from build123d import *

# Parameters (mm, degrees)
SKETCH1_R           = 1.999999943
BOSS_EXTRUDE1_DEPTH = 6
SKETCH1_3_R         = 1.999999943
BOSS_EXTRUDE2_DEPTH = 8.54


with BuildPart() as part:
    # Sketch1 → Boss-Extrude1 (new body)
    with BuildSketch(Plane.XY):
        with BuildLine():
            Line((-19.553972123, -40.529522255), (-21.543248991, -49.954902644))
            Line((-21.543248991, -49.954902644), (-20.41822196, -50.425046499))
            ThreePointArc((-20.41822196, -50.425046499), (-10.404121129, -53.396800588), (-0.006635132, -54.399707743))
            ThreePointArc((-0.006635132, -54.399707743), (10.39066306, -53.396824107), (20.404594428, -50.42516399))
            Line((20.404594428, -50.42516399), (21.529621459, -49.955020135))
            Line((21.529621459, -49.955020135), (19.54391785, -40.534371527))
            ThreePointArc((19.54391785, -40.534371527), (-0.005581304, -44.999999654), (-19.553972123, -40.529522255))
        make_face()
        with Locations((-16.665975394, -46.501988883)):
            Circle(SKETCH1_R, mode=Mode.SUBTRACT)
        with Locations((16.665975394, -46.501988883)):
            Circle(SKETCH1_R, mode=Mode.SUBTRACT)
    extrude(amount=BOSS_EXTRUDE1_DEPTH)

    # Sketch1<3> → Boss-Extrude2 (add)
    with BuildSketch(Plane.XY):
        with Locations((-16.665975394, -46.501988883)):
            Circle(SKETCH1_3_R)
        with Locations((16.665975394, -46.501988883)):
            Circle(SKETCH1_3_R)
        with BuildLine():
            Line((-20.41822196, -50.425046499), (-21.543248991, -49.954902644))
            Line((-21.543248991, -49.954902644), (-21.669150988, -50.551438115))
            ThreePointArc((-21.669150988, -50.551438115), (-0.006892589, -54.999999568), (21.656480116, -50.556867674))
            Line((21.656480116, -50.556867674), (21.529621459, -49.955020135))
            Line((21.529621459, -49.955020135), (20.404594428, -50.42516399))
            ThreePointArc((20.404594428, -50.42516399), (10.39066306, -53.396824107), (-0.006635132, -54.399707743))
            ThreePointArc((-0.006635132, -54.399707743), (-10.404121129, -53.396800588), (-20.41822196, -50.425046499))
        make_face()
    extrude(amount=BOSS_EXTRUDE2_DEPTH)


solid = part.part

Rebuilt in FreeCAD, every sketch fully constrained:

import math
import FreeCAD as App
import Part
import Sketcher
from FreeCAD import Vector
Q = App.Units.Quantity

doc = App.newDocument("Part")
body = doc.addObject("PartDesign::Body", "Body")

# Sketch on XY plane
sketch1 = body.newObject("Sketcher::SketchObject", "Sketch")
sketch1.AttachmentSupport = (doc.getObject("XY_Plane"), [""])
sketch1.MapMode = "FlatFace"
sketch1.addGeometry([
    Part.LineSegment(Vector(-19.6, -40.5, 0), Vector(-21.5, -50, 0)),  # 0
    Part.LineSegment(Vector(-21.5, -50, 0), Vector(-20.4, -50.4, 0)),  # 1
    Part.ArcOfCircle(Part.Circle(Vector(0, 0, 0), Vector(0, 0, 1), 54.4), math.radians(-112), math.radians(-90)),  # 2
    Part.ArcOfCircle(Part.Circle(Vector(0, 0, 0), Vector(0, 0, 1), 54.4), math.radians(-90), math.radians(-68)),  # 3
    Part.LineSegment(Vector(20.4, -50.4, 0), Vector(21.5, -50, 0)),  # 4
    Part.LineSegment(Vector(21.5, -50, 0), Vector(19.5, -40.5, 0)),  # 5
    Part.ArcOfCircle(Part.Circle(Vector(0, 0, 0), Vector(0, 0, 1), 45), math.radians(-116), math.radians(-64)),  # 6
    Part.Circle(Vector(-16.7, -46.5, 0), Vector(0, 0, 1), 2),  # 7
    Part.Circle(Vector(16.7, -46.5, 0), Vector(0, 0, 1), 2),  # 8
], False)
sketch1.addConstraint([
    Sketcher.Constraint("Coincident", 0, 2, 1, 1),
    Sketcher.Constraint("Coincident", 1, 2, 2, 1),
    Sketcher.Constraint("Tangent", 2, 2, 3, 1),
    Sketcher.Constraint("Coincident", 3, 2, 4, 1),
    Sketcher.Constraint("Coincident", 4, 2, 5, 1),
    Sketcher.Constraint("Coincident", 5, 2, 6, 2),
    Sketcher.Constraint("Coincident", 6, 1, 0, 1),
    Sketcher.Constraint("Coincident", 6, 3, -1, 1),
    Sketcher.Constraint("Equal", 2, 3),
    Sketcher.Constraint("Equal", 7, 8),
    Sketcher.Constraint("Symmetric", 7, 3, 8, 3, -2),
    Sketcher.Constraint("Equal", 1, 4),
    Sketcher.Constraint("Diameter", 7, Q("4 mm")),
    Sketcher.Constraint("Radius", 6, Q("45 mm")),
    Sketcher.Constraint("Radius", 2, Q("54.398276 mm")),
    Sketcher.Constraint("Distance", 1, Q("1.219312 mm")),
    Sketcher.Constraint("Distance", 5, Q("9.62765 mm")),
    Sketcher.Constraint("DistanceX", 2, 3, -1, 1, Q("0.006669 mm")),
    Sketcher.Constraint("DistanceY", 2, 3, -1, 1, Q("0.001431 mm")),
    Sketcher.Constraint("DistanceY", 7, 3, -1, 1, Q("46.501989 mm")),
    Sketcher.Constraint("DistanceX", 0, 2, -1, 1, Q("21.543249 mm")),
    Sketcher.Constraint("DistanceX", 1, 2, -1, 1, Q("20.418222 mm")),
    Sketcher.Constraint("DistanceX", -1, 1, 4, 2, Q("21.529621 mm")),
    Sketcher.Constraint("DistanceY", 4, 2, -1, 1, Q("49.95502 mm")),
    Sketcher.Constraint("DistanceX", 7, 3, 8, 3, Q("33.331951 mm")),
    Sketcher.Constraint("DistanceX", 7, 3, 2, 2, Q("16.65934 mm")),
    Sketcher.Constraint("DistanceY", 0, 2, 6, 1, Q("9.42538 mm")),
])
pad1 = body.newObject("PartDesign::Pad", "Pad")
pad1.Profile = sketch1
pad1.Length = 6

# Sketch on XY plane
sketch2 = body.newObject("Sketcher::SketchObject", "Sketch001")
sketch2.AttachmentSupport = (doc.getObject("XY_Plane"), [""])
sketch2.MapMode = "FlatFace"
sketch2.addGeometry([
    Part.Circle(Vector(-16.7, -46.5, 0), Vector(0, 0, 1), 2),  # 0
    Part.Circle(Vector(16.7, -46.5, 0), Vector(0, 0, 1), 2),  # 1
    Part.LineSegment(Vector(-20.4, -50.4, 0), Vector(-21.5, -50, 0)),  # 2
    Part.LineSegment(Vector(-21.5, -50, 0), Vector(-21.7, -50.6, 0)),  # 3
    Part.ArcOfCircle(Part.Circle(Vector(0, 0, 0), Vector(0, 0, 1), 55), math.radians(-113), math.radians(-67)),  # 4
    Part.LineSegment(Vector(21.7, -50.6, 0), Vector(21.5, -50, 0)),  # 5
    Part.LineSegment(Vector(21.5, -50, 0), Vector(20.4, -50.4, 0)),  # 6
    Part.ArcOfCircle(Part.Circle(Vector(0, 0, 0), Vector(0, 0, 1), 54.4), math.radians(-90), math.radians(-68)),  # 7
    Part.ArcOfCircle(Part.Circle(Vector(0, 0, 0), Vector(0, 0, 1), 54.4), math.radians(-112), math.radians(-90)),  # 8
], False)
sketch2.addConstraint([
    Sketcher.Constraint("Coincident", 2, 2, 3, 1),
    Sketcher.Constraint("Coincident", 3, 2, 4, 1),
    Sketcher.Constraint("Coincident", 4, 2, 5, 1),
    Sketcher.Constraint("Coincident", 5, 2, 6, 1),
    Sketcher.Constraint("Coincident", 6, 2, 7, 2),
    Sketcher.Constraint("Tangent", 7, 1, 8, 2),
    Sketcher.Constraint("Coincident", 8, 1, 2, 1),
    Sketcher.Constraint("Coincident", 4, 3, -1, 1),
    Sketcher.Constraint("Equal", 0, 1),
    Sketcher.Constraint("Equal", 7, 8),
    Sketcher.Constraint("Symmetric", 0, 3, 1, 3, -2),
    Sketcher.Constraint("Equal", 2, 6),
    Sketcher.Constraint("Diameter", 0, Q("4 mm")),
    Sketcher.Constraint("Radius", 4, Q("55 mm")),
    Sketcher.Constraint("Radius", 7, Q("54.398276 mm")),
    Sketcher.Constraint("DistanceX", 3, 2, 2, 2, Q("0.125902 mm")),
    Sketcher.Constraint("Distance", 2, Q("1.219312 mm")),
    Sketcher.Constraint("DistanceY", 0, 3, -1, 1, Q("46.501989 mm")),
    Sketcher.Constraint("DistanceX", 7, 3, -1, 1, Q("0.006669 mm")),
    Sketcher.Constraint("DistanceY", 7, 3, -1, 1, Q("0.001431 mm")),
    Sketcher.Constraint("DistanceX", 2, 2, -1, 1, Q("21.543249 mm")),
    Sketcher.Constraint("DistanceX", -1, 1, 4, 2, Q("21.65648 mm")),
    Sketcher.Constraint("DistanceX", -1, 1, 5, 2, Q("21.529621 mm")),
    Sketcher.Constraint("DistanceY", 5, 2, -1, 1, Q("49.95502 mm")),
    Sketcher.Constraint("DistanceX", 8, 1, -1, 1, Q("20.418222 mm")),
    Sketcher.Constraint("DistanceX", 0, 3, 1, 3, Q("33.331951 mm")),
    Sketcher.Constraint("DistanceX", 0, 3, 7, 1, Q("16.65934 mm")),
])
pad2 = body.newObject("PartDesign::Pad", "Pad001")
pad2.Profile = sketch2
pad2.Length = 8.54

doc.recompute()
